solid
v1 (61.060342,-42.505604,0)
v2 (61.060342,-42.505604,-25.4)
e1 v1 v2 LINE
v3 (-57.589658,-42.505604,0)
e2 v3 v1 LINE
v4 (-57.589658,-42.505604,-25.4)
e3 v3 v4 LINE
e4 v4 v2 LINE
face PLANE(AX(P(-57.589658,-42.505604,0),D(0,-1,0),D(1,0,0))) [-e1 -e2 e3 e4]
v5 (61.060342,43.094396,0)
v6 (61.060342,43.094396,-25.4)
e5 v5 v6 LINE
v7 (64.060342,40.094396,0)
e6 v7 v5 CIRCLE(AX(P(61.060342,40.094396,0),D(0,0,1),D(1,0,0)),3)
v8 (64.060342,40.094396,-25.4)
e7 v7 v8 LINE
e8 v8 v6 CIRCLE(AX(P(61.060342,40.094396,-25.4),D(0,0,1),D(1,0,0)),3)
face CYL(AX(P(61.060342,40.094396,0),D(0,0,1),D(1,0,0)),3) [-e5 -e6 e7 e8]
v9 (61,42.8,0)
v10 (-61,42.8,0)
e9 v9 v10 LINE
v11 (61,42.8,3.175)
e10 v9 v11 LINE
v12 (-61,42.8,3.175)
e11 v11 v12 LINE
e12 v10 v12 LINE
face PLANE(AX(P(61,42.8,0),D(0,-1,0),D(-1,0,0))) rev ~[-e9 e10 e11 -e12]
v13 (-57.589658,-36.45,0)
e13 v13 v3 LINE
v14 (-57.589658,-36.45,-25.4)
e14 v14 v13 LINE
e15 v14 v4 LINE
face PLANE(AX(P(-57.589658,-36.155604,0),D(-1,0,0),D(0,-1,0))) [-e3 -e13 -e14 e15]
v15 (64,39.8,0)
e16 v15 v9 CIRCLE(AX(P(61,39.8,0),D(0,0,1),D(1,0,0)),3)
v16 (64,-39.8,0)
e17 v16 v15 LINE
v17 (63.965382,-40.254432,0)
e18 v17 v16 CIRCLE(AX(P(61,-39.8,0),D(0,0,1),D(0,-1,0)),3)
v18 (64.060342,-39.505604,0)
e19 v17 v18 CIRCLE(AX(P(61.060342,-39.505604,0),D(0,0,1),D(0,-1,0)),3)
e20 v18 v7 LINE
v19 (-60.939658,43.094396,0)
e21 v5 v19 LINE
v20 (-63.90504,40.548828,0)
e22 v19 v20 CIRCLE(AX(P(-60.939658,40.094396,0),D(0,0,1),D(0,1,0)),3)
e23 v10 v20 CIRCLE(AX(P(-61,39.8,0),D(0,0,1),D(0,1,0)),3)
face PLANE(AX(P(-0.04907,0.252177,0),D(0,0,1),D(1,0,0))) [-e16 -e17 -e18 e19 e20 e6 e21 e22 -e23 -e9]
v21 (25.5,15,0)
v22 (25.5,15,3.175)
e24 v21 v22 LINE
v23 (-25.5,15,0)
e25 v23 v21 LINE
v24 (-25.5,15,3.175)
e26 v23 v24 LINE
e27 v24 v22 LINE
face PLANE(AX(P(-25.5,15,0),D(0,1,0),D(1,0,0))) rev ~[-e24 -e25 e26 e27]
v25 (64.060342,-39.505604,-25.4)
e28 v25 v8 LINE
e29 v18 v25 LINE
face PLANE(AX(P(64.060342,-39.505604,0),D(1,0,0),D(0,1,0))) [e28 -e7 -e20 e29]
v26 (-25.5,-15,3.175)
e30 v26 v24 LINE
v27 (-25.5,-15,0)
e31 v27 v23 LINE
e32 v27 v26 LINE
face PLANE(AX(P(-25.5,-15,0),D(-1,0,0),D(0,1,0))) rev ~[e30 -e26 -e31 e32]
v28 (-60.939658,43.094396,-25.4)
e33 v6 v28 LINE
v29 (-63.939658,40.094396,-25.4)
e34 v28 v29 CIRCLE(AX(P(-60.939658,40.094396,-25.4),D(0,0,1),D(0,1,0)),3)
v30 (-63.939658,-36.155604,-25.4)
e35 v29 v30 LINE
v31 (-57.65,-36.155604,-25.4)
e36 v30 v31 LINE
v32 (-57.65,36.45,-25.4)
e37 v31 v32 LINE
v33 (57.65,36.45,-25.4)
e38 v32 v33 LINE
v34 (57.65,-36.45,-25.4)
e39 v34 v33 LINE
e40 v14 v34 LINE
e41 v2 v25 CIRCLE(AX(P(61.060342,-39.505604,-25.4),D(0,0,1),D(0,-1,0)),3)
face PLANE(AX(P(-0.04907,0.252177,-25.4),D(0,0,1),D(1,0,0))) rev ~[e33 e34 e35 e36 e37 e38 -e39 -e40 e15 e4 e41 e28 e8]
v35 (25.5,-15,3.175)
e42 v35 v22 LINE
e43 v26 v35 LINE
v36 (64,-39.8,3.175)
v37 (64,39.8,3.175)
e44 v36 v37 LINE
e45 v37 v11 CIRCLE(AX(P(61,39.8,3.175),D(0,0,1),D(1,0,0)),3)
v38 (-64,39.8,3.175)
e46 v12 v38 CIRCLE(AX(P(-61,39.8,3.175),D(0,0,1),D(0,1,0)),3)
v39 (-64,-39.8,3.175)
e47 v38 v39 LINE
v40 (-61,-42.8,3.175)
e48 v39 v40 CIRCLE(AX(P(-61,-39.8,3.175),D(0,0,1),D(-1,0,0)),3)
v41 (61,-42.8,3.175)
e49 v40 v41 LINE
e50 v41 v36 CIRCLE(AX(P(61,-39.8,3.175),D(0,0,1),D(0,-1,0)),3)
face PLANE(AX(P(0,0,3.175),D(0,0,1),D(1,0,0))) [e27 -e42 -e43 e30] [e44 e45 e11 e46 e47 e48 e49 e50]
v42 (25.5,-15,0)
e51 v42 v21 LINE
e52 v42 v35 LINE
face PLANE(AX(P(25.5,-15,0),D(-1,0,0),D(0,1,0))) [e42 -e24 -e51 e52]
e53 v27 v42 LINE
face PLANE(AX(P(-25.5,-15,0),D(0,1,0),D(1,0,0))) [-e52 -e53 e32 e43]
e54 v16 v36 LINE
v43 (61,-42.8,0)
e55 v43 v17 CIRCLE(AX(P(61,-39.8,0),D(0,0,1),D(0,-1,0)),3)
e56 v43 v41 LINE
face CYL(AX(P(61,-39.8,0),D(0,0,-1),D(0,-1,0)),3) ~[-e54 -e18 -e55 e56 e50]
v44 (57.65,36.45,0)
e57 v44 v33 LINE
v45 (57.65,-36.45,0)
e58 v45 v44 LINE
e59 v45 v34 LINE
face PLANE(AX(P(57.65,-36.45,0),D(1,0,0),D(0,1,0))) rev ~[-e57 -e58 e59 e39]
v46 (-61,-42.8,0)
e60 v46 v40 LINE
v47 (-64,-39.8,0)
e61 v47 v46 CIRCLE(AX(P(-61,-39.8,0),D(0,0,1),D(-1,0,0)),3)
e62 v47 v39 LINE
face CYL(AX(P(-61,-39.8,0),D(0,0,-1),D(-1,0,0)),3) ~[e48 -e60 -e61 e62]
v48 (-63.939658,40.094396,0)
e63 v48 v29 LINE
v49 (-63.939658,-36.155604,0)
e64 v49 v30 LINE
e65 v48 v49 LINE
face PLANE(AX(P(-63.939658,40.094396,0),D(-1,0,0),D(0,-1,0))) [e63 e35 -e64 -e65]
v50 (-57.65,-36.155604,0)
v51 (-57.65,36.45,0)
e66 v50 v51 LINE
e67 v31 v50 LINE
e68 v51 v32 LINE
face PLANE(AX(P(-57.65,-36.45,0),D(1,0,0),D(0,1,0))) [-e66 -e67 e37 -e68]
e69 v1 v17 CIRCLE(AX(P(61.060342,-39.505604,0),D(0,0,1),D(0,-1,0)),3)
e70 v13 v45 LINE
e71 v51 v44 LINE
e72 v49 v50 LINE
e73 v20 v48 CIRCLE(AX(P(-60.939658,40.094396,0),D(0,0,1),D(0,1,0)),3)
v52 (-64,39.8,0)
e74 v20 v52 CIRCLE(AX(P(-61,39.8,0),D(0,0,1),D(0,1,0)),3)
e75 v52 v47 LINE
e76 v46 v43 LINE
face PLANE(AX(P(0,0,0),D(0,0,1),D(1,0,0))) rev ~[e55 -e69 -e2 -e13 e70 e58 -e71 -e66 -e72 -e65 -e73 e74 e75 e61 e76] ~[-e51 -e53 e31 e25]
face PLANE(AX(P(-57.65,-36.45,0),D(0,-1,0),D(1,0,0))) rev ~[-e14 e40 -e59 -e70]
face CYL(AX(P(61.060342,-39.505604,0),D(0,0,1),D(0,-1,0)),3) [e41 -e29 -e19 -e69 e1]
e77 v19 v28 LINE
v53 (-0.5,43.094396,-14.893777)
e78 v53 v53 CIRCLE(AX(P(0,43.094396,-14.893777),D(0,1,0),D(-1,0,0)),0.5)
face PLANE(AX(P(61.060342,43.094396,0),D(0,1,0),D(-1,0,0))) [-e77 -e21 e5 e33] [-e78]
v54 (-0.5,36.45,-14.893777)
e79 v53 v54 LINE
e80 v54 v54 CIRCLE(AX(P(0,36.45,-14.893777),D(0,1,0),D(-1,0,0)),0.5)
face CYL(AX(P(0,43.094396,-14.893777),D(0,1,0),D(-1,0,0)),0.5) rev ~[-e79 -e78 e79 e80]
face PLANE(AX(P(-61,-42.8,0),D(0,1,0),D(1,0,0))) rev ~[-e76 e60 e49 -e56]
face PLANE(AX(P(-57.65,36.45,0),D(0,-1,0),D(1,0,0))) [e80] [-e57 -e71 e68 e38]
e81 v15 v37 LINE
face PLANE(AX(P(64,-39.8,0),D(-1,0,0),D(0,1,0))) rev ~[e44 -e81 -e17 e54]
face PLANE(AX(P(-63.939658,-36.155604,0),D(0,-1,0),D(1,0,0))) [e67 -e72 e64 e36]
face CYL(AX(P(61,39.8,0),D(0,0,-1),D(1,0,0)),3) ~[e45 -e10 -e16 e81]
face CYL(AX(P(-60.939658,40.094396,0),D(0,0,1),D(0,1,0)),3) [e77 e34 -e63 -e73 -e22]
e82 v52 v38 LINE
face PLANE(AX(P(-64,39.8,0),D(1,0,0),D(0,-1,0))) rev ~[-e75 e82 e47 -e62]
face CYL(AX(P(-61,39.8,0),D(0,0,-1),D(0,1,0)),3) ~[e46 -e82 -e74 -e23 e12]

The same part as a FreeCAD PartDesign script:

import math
import FreeCAD as App
import Part
import Sketcher
Q = App.Units.Quantity

doc = App.newDocument("Part")
params = doc.addObject("Spreadsheet::Sheet", "Params")
for row, (alias, value) in enumerate([
    ("sketch1_radius", "3 mm"),
    ("sketch1_width", "122 mm"),
    ("sketch1_width2", "51 mm"),
    ("sketch1_height", "30 mm"),
    ("sketch1_height2", "79.6 mm"),
    ("pad1_length", "3.175 mm"),
    ("sketch2_radius", "3 mm"),
    ("sketch2_width", "122 mm"),
    ("sketch2_height", "79.6 mm"),
    ("sketch2_width2", "6.35 mm"),
    ("pad2_length", "25.4 mm"),
    ("sketch3_width", "115.3 mm"),
    ("sketch3_height", "72.9 mm"),
    ("pocket1_length", "25.4 mm"),
    ("sketch4_diameter", "1 mm"),
    ("pocket2_length", "25 mm"),
], start=1):
    params.set(f"A{row}", alias)
    params.set(f"B{row}", "=" + value)
    params.setAlias(f"B{row}", alias)

body = doc.addObject("PartDesign::Body", "Body")

# Sketch on XY plane
sketch1 = body.newObject("Sketcher::SketchObject", "Sketch")
sketch1.AttachmentSupport = (doc.getObject("XY_Plane"), [""])
sketch1.MapMode = "FlatFace"
sketch1.addGeometry(Part.LineSegment(App.Vector(61, 42.8, 0), App.Vector(-61, 42.8, 0)), False)
sketch1.addGeometry(Part.ArcOfCircle(Part.Circle(App.Vector(-61, 39.8, 0), App.Vector(0, 0, 1), 3), math.radians(90), math.radians(180)), False)
sketch1.addGeometry(Part.LineSegment(App.Vector(-64, 39.8, 0), App.Vector(-64, -39.8, 0)), False)
sketch1.addGeometry(Part.ArcOfCircle(Part.Circle(App.Vector(-61, -39.8, 0), App.Vector(0, 0, 1), 3), math.radians(180), math.radians(270)), False)
sketch1.addGeometry(Part.LineSegment(App.Vector(-61, -42.8, 0), App.Vector(61, -42.8, 0)), False)
sketch1.addGeometry(Part.ArcOfCircle(Part.Circle(App.Vector(61, -39.8, 0), App.Vector(0, 0, 1), 3), math.radians(-90), math.radians(0)), False)
sketch1.addGeometry(Part.LineSegment(App.Vector(64, -39.8, 0), App.Vector(64, 39.8, 0)), False)
sketch1.addGeometry(Part.ArcOfCircle(Part.Circle(App.Vector(61, 39.8, 0), App.Vector(0, 0, 1), 3), math.radians(0), math.radians(90)), False)
sketch1.addGeometry(Part.LineSegment(App.Vector(25.5, -15, 0), App.Vector(-25.5, -15, 0)), False)
sketch1.addGeometry(Part.LineSegment(App.Vector(-25.5, -15, 0), App.Vector(-25.5, 15, 0)), False)
sketch1.addGeometry(Part.LineSegment(App.Vector(-25.5, 15, 0), App.Vector(25.5, 15, 0)), False)
sketch1.addGeometry(Part.LineSegment(App.Vector(25.5, 15, 0), App.Vector(25.5, -15, 0)), False)
sketch1.addConstraint(Sketcher.Constraint("Tangent", 0, 2, 1, 1))
sketch1.addConstraint(Sketcher.Constraint("Tangent", 1, 2, 2, 1))
sketch1.addConstraint(Sketcher.Constraint("Tangent", 2, 2, 3, 1))
sketch1.addConstraint(Sketcher.Constraint("Tangent", 3, 2, 4, 1))
sketch1.addConstraint(Sketcher.Constraint("Tangent", 4, 2, 5, 1))
sketch1.addConstraint(Sketcher.Constraint("Tangent", 5, 2, 6, 1))
sketch1.addConstraint(Sketcher.Constraint("Tangent", 6, 2, 7, 1))
sketch1.addConstraint(Sketcher.Constraint("Tangent", 7, 2, 0, 1))
sketch1.addConstraint(Sketcher.Constraint("Coincident", 8, 2, 9, 1))
sketch1.addConstraint(Sketcher.Constraint("Coincident", 9, 2, 10, 1))
sketch1.addConstraint(Sketcher.Constraint("Coincident", 10, 2, 11, 1))
sketch1.addConstraint(Sketcher.Constraint("Coincident", 11, 2, 8, 1))
sketch1.addConstraint(Sketcher.Constraint("Horizontal", 0))
sketch1.addConstraint(Sketcher.Constraint("Vertical", 2))
sketch1.addConstraint(Sketcher.Constraint("Horizontal", 4))
sketch1.addConstraint(Sketcher.Constraint("Vertical", 6))
sketch1.addConstraint(Sketcher.Constraint("Horizontal", 8))
sketch1.addConstraint(Sketcher.Constraint("Vertical", 9))
sketch1.addConstraint(Sketcher.Constraint("Horizontal", 10))
sketch1.addConstraint(Sketcher.Constraint("Vertical", 11))
sketch1.addConstraint(Sketcher.Constraint("Equal", 1, 3))
sketch1.addConstraint(Sketcher.Constraint("Equal", 3, 5))
sketch1.addConstraint(Sketcher.Constraint("Equal", 5, 7))
sketch1.addConstraint(Sketcher.Constraint("Symmetric", 1, 3, 5, 3, -1, 1))
sketch1.addConstraint(Sketcher.Constraint("Symmetric", 8, 2, 10, 2, -1, 1))
sketch1.addConstraint(Sketcher.Constraint("Radius", 1, Q("3 mm")))
sketch1.addConstraint(Sketcher.Constraint("DistanceX", 0, 2, 0, 1, Q("122 mm")))
sketch1.addConstraint(Sketcher.Constraint("DistanceX", 8, 2, 8, 1, Q("51 mm")))
sketch1.addConstraint(Sketcher.Constraint("DistanceY", 9, 1, 9, 2, Q("30 mm")))
sketch1.addConstraint(Sketcher.Constraint("DistanceY", 2, 2, 2, 1, Q("79.6 mm")))
sketch1.setExpression("Constraints[25]", "Params.sketch1_radius")
sketch1.setExpression("Constraints[26]", "Params.sketch1_width")
sketch1.setExpression("Constraints[27]", "Params.sketch1_width2")
sketch1.setExpression("Constraints[28]", "Params.sketch1_height")
sketch1.setExpression("Constraints[29]", "Params.sketch1_height2")
pad1 = body.newObject("PartDesign::Pad", "Pad")
pad1.Profile = sketch1
pad1.setExpression("Length", "Params.pad1_length")

# Sketch on XY plane
sketch2 = body.newObject("Sketcher::SketchObject", "Sketch001")
sketch2.AttachmentSupport = (doc.getObject("XY_Plane"), [""])
sketch2.MapMode = "FlatFace"
sketch2.addGeometry(Part.ArcOfCircle(Part.Circle(App.Vector(-60.9, 40.1, 0), App.Vector(0, 0, 1), 3), math.radians(90), math.radians(180)), False)
sketch2.addGeometry(Part.LineSegment(App.Vector(-63.9, 40.1, 0), App.Vector(-63.9, -36.2, 0)), False)
sketch2.addGeometry(Part.LineSegment(App.Vector(-63.9, -36.2, 0), App.Vector(-57.6, -36.2, 0)), False)
sketch2.addGeometry(Part.LineSegment(App.Vector(-57.6, -36.2, 0), App.Vector(-57.6, -42.5, 0)), False)
sketch2.addGeometry(Part.LineSegment(App.Vector(-57.6, -42.5, 0), App.Vector(61.1, -42.5, 0)), False)
sketch2.addGeometry(Part.ArcOfCircle(Part.Circle(App.Vector(61.1, -39.5, 0), App.Vector(0, 0, 1), 3), math.radians(-90), math.radians(0)), False)
sketch2.addGeometry(Part.LineSegment(App.Vector(64.1, -39.5, 0), App.Vector(64.1, 40.1, 0)), False)
sketch2.addGeometry(Part.ArcOfCircle(Part.Circle(App.Vector(61.1, 40.1, 0), App.Vector(0, 0, 1), 3), math.radians(0), math.radians(90)), False)
sketch2.addGeometry(Part.LineSegment(App.Vector(61.1, 43.1, 0), App.Vector(-60.9, 43.1, 0)), False)
sketch2.addConstraint(Sketcher.Constraint("Tangent", 0, 2, 1, 1))
sketch2.addConstraint(Sketcher.Constraint("Coincident", 1, 2, 2, 1))
sketch2.addConstraint(Sketcher.Constraint("Coincident", 2, 2, 3, 1))
sketch2.addConstraint(Sketcher.Constraint("Coincident", 3, 2, 4, 1))
sketch2.addConstraint(Sketcher.Constraint("Tangent", 4, 2, 5, 1))
sketch2.addConstraint(Sketcher.Constraint("Tangent", 5, 2, 6, 1))
sketch2.addConstraint(Sketcher.Constraint("Tangent", 6, 2, 7, 1))
sketch2.addConstraint(Sketcher.Constraint("Tangent", 7, 2, 8, 1))
sketch2.addConstraint(Sketcher.Constraint("Tangent", 8, 2, 0, 1))
sketch2.addConstraint(Sketcher.Constraint("Vertical", 1))
sketch2.addConstraint(Sketcher.Constraint("Horizontal", 2))
sketch2.addConstraint(Sketcher.Constraint("Vertical", 3))
sketch2.addConstraint(Sketcher.Constraint("Horizontal", 4))
sketch2.addConstraint(Sketcher.Constraint("Vertical", 6))
sketch2.addConstraint(Sketcher.Constraint("Horizontal", 8))
sketch2.addConstraint(Sketcher.Constraint("Equal", 0, 5))
sketch2.addConstraint(Sketcher.Constraint("Equal", 5, 7))
sketch2.addConstraint(Sketcher.Constraint("Equal", 2, 3))
sketch2.addConstraint(Sketcher.Constraint("Radius", 0, Q("3 mm")))
sketch2.addConstraint(Sketcher.Constraint("DistanceX", 8, 2, 8, 1, Q("122 mm")))
sketch2.addConstraint(Sketcher.Constraint("DistanceY", 6, 1, 6, 2, Q("79.6 mm")))
sketch2.addConstraint(Sketcher.Constraint("DistanceX", 2, 1, 2, 2, Q("6.35 mm")))
sketch2.addConstraint(Sketcher.Constraint("DistanceX", 0, 3, -1, 1, Q("60.939658 mm")))
sketch2.addConstraint(Sketcher.Constraint("DistanceY", -1, 1, 0, 3, Q("40.094396 mm")))
sketch2.setExpression("Constraints[18]", "Params.sketch2_radius")
sketch2.setExpression("Constraints[19]", "Params.sketch2_width")
sketch2.setExpression("Constraints[20]", "Params.sketch2_height")
sketch2.setExpression("Constraints[21]", "Params.sketch2_width2")
pad2 = body.newObject("PartDesign::Pad", "Pad001")
pad2.Profile = sketch2
pad2.setExpression("Length", "Params.pad2_length")
pad2.Reversed = True

# Sketch on XY plane
sketch3 = body.newObject("Sketcher::SketchObject", "Sketch002")
sketch3.AttachmentSupport = (doc.getObject("XY_Plane"), [""])
sketch3.MapMode = "FlatFace"
sketch3.addGeometry(Part.LineSegment(App.Vector(-58, 36, 0), App.Vector(-58, -36, 0)), False)
sketch3.addGeometry(Part.LineSegment(App.Vector(-58, -36, 0), App.Vector(58, -36, 0)), False)
sketch3.addGeometry(Part.LineSegment(App.Vector(58, -36, 0), App.Vector(58, 36, 0)), False)
sketch3.addGeometry(Part.LineSegment(App.Vector(58, 36, 0), App.Vector(-58, 36, 0)), False)
sketch3.addConstraint(Sketcher.Constraint("Coincident", 0, 2, 1, 1))
sketch3.addConstraint(Sketcher.Constraint("Coincident", 1, 2, 2, 1))
sketch3.addConstraint(Sketcher.Constraint("Coincident", 2, 2, 3, 1))
sketch3.addConstraint(Sketcher.Constraint("Coincident", 3, 2, 0, 1))
sketch3.addConstraint(Sketcher.Constraint("Vertical", 0))
sketch3.addConstraint(Sketcher.Constraint("Horizontal", 1))
sketch3.addConstraint(Sketcher.Constraint("Vertical", 2))
sketch3.addConstraint(Sketcher.Constraint("Horizontal", 3))
sketch3.addConstraint(Sketcher.Constraint("Symmetric", 0, 2, 2, 2, -1, 1))
sketch3.addConstraint(Sketcher.Constraint("DistanceX", 1, 1, 1, 2, Q("115.3 mm")))
sketch3.addConstraint(Sketcher.Constraint("DistanceY", 0, 2, 0, 1, Q("72.9 mm")))
sketch3.setExpression("Constraints[9]", "Params.sketch3_width")
sketch3.setExpression("Constraints[10]", "Params.sketch3_height")
pocket1 = body.newObject("PartDesign::Pocket", "Pocket")
pocket1.Profile = sketch3
pocket1.setExpression("Length", "Params.pocket1_length")

# Sketch on XZ plane
sketch4 = body.newObject("Sketcher::SketchObject", "Sketch003")
sketch4.AttachmentSupport = (doc.getObject("XZ_Plane"), [""])
sketch4.MapMode = "FlatFace"
sketch4.AttachmentOffset = App.Placement(App.Vector(0, 0, -43.094396), App.Rotation())
sketch4.addGeometry(Part.Circle(App.Vector(0, -14.9, 0), App.Vector(0, 0, 1), 0.5), False)
sketch4.addConstraint(Sketcher.Constraint("PointOnObject", 0, 3, -2))
sketch4.addConstraint(Sketcher.Constraint("Diameter", 0, Q("1 mm")))
sketch4.addConstraint(Sketcher.Constraint("DistanceY", 0, 3, -1, 1, Q("14.893777 mm")))
sketch4.setExpression("Constraints[1]", "Params.sketch4_diameter")
pocket2 = body.newObject("PartDesign::Pocket", "Pocket001")
pocket2.Profile = sketch4
pocket2.setExpression("Length", "Params.pocket2_length")
pocket2.Reversed = True

doc.recompute()
